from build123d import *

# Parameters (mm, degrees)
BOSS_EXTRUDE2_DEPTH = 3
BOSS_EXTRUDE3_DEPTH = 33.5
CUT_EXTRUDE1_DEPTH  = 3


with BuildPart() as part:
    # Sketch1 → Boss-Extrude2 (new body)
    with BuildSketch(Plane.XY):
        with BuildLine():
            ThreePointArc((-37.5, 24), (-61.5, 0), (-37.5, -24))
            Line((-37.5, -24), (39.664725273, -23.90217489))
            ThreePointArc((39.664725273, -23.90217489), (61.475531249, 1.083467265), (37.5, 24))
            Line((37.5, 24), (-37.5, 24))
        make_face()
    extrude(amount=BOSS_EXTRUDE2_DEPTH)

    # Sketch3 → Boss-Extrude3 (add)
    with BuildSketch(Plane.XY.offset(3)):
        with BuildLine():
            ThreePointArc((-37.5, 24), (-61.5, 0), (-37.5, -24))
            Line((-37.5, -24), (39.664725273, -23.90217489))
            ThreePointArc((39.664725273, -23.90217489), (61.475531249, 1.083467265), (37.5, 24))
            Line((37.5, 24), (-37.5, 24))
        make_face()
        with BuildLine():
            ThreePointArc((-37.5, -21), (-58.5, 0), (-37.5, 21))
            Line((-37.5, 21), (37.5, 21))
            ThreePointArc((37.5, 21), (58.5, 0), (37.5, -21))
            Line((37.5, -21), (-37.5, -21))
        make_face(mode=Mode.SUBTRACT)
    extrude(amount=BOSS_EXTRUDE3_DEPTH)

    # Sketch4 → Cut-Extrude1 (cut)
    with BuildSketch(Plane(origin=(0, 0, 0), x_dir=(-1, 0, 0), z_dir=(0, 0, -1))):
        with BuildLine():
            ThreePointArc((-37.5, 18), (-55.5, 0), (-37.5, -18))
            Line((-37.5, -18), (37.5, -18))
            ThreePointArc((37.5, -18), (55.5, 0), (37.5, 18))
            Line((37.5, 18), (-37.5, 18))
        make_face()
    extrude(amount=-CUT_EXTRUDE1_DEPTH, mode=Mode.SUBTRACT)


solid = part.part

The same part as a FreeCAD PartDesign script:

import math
import FreeCAD as App
import Part
import Sketcher

doc = App.newDocument("Part")
params = doc.addObject("Spreadsheet::Sheet", "Params")
for row, (alias, value) in enumerate([
    ("sketch1_radius", "24 mm"),
    ("sketch1_width", "75 mm"),
    ("pad1_length", "3 mm"),
    ("sketch2_radius", "24 mm"),
    ("sketch2_radius2", "21 mm"),
    ("sketch2_width", "75 mm"),
    ("pad2_length", "33.5 mm"),
    ("sketch3_radius", "18 mm"),
    ("sketch3_width", "75 mm"),
    ("pocket1_length", "3 mm"),
], start=1):
    params.set(f"A{row}", alias)
    params.set(f"B{row}", "=" + value)
    params.setAlias(f"B{row}", alias)

body = doc.addObject("PartDesign::Body", "Body")

sketch1 = body.newObject("Sketcher::SketchObject", "Sketch")
sketch1.AttachmentSupport = (doc.getObject("XY_Plane"), [""])
sketch1.MapMode = "FlatFace"
sketch1.addGeometry([
    Part.ArcOfCircle(Part.Circle(App.Vector(-38, 0, 0), App.Vector(0, 0, 1), 24), math.radians(90), math.radians(270)),
    Part.LineSegment(App.Vector(-38, -24, 0), App.Vector(40, -24, 0)),
    Part.ArcOfCircle(Part.Circle(App.Vector(38, 0, 0), App.Vector(0, 0, 1), 24), math.radians(-85), math.radians(90)),
    Part.LineSegment(App.Vector(38, 24, 0), App.Vector(-38, 24, 0)),
], False)
sketch1.addConstraint([
    Sketcher.Constraint("Coincident", 0, 2, 1, 1),
    Sketcher.Constraint("Coincident", 1, 2, 2, 1),
    Sketcher.Constraint("Tangent", 2, 2, 3, 1),
    Sketcher.Constraint("Tangent", 3, 2, 0, 1),
    Sketcher.Constraint("Horizontal", 3),
    Sketcher.Constraint("Equal", 0, 2),
    Sketcher.Constraint("Symmetric", 0, 3, 2, 3, -1, 1),
    Sketcher.Constraint("Vertical", 0, 2, 3, 2),
    Sketcher.Constraint("Radius", 0, 24.0),
    Sketcher.Constraint("DistanceX", 3, 2, 3, 1, 75.0),
    Sketcher.Constraint("Distance", 1, 77.164787),
])
sketch1.setExpression("Constraints[8]", "Params.sketch1_radius")
sketch1.setExpression("Constraints[9]", "Params.sketch1_width")
pad1 = body.newObject("PartDesign::Pad", "Pad")
pad1.Profile = sketch1
pad1.setExpression("Length", "Params.pad1_length")

sketch2 = body.newObject("Sketcher::SketchObject", "Sketch001")
sketch2.AttachmentSupport = (doc.getObject("XY_Plane"), [""])
sketch2.MapMode = "FlatFace"
sketch2.AttachmentOffset = App.Placement(App.Vector(0, 0, 3), App.Rotation())
sketch2.addGeometry([
    Part.ArcOfCircle(Part.Circle(App.Vector(-38, 0, 0), App.Vector(0, 0, 1), 24), math.radians(90), math.radians(270)),
    Part.LineSegment(App.Vector(-38, -24, 0), App.Vector(40, -24, 0)),
    Part.ArcOfCircle(Part.Circle(App.Vector(38, 0, 0), App.Vector(0, 0, 1), 24), math.radians(-85), math.radians(90)),
    Part.LineSegment(App.Vector(38, 24, 0), App.Vector(-38, 24, 0)),
    Part.LineSegment(App.Vector(38, -21, 0), App.Vector(-38, -21, 0)),
    Part.ArcOfCircle(Part.Circle(App.Vector(-38, 0, 0), App.Vector(0, 0, 1), 21), math.radians(90), math.radians(270)),
    Part.LineSegment(App.Vector(-38, 21, 0), App.Vector(38, 21, 0)),
    Part.ArcOfCircle(Part.Circle(App.Vector(38, 0, 0), App.Vector(0, 0, 1), 21), math.radians(-90), math.radians(90)),
], False)
sketch2.addConstraint([
    Sketcher.Constraint("Coincident", 0, 2, 1, 1),
    Sketcher.Constraint("Coincident", 1, 2, 2, 1),
    Sketcher.Constraint("Tangent", 2, 2, 3, 1),
    Sketcher.Constraint("Tangent", 3, 2, 0, 1),
    Sketcher.Constraint("Tangent", 4, 2, 5, 2),
    Sketcher.Constraint("Tangent", 5, 1, 6, 1),
    Sketcher.Constraint("Tangent", 6, 2, 7, 2),
    Sketcher.Constraint("Tangent", 7, 1, 4, 1),
    Sketcher.Constraint("Horizontal", 3),
    Sketcher.Constraint("Horizontal", 4),
    Sketcher.Constraint("Horizontal", 6),
    Sketcher.Constraint("Coincident", 5, 3, 0, 3),
    Sketcher.Constraint("Coincident", 7, 3, 2, 3),
    Sketcher.Constraint("Symmetric", 0, 3, 2, 3, -1, 1),
    Sketcher.Constraint("Vertical", 5, 3, 0, 2),
    Sketcher.Constraint("Radius", 0, 24.0),
    Sketcher.Constraint("Radius", 5, 21.0),
    Sketcher.Constraint("DistanceX", 3, 2, 3, 1, 75.0),
    Sketcher.Constraint("Distance", 1, 77.164787),
])
sketch2.setExpression("Constraints[15]", "Params.sketch2_radius")
sketch2.setExpression("Constraints[16]", "Params.sketch2_radius2")
sketch2.setExpression("Constraints[17]", "Params.sketch2_width")
pad2 = body.newObject("PartDesign::Pad", "Pad001")
pad2.Profile = sketch2
pad2.setExpression("Length", "Params.pad2_length")

sketch3 = body.newObject("Sketcher::SketchObject", "Sketch002")
sketch3.AttachmentSupport = (doc.getObject("XY_Plane"), [""])
sketch3.MapMode = "FlatFace"
sketch3.addGeometry([
    Part.ArcOfCircle(Part.Circle(App.Vector(38, 0, 0), App.Vector(0, 0, 1), 18), math.radians(-90), math.radians(90)),
    Part.LineSegment(App.Vector(38, -18, 0), App.Vector(-38, -18, 0)),
    Part.ArcOfCircle(Part.Circle(App.Vector(-38, 0, 0), App.Vector(0, 0, 1), 18), math.radians(90), math.radians(270)),
    Part.LineSegment(App.Vector(-38, 18, 0), App.Vector(38, 18, 0)),
], False)
sketch3.addConstraint([
    Sketcher.Constraint("Tangent", 0, 1, 1, 1),
    Sketcher.Constraint("Tangent", 1, 2, 2, 2),
    Sketcher.Constraint("Tangent", 2, 1, 3, 1),
    Sketcher.Constraint("Tangent", 3, 2, 0, 2),
    Sketcher.Constraint("Horizontal", 1),
    Sketcher.Constraint("Horizontal", 3),
    Sketcher.Constraint("Symmetric", 0, 3, 2, 3, -1, 1),
    Sketcher.Constraint("Radius", 0, 18.0),
    Sketcher.Constraint("DistanceX", 1, 2, 1, 1, 75.0),
])
sketch3.setExpression("Constraints[7]", "Params.sketch3_radius")
sketch3.setExpression("Constraints[8]", "Params.sketch3_width")
pocket1 = body.newObject("PartDesign::Pocket", "Pocket")
pocket1.Profile = sketch3
pocket1.setExpression("Length", "Params.pocket1_length")
pocket1.Reversed = True

doc.recompute()
